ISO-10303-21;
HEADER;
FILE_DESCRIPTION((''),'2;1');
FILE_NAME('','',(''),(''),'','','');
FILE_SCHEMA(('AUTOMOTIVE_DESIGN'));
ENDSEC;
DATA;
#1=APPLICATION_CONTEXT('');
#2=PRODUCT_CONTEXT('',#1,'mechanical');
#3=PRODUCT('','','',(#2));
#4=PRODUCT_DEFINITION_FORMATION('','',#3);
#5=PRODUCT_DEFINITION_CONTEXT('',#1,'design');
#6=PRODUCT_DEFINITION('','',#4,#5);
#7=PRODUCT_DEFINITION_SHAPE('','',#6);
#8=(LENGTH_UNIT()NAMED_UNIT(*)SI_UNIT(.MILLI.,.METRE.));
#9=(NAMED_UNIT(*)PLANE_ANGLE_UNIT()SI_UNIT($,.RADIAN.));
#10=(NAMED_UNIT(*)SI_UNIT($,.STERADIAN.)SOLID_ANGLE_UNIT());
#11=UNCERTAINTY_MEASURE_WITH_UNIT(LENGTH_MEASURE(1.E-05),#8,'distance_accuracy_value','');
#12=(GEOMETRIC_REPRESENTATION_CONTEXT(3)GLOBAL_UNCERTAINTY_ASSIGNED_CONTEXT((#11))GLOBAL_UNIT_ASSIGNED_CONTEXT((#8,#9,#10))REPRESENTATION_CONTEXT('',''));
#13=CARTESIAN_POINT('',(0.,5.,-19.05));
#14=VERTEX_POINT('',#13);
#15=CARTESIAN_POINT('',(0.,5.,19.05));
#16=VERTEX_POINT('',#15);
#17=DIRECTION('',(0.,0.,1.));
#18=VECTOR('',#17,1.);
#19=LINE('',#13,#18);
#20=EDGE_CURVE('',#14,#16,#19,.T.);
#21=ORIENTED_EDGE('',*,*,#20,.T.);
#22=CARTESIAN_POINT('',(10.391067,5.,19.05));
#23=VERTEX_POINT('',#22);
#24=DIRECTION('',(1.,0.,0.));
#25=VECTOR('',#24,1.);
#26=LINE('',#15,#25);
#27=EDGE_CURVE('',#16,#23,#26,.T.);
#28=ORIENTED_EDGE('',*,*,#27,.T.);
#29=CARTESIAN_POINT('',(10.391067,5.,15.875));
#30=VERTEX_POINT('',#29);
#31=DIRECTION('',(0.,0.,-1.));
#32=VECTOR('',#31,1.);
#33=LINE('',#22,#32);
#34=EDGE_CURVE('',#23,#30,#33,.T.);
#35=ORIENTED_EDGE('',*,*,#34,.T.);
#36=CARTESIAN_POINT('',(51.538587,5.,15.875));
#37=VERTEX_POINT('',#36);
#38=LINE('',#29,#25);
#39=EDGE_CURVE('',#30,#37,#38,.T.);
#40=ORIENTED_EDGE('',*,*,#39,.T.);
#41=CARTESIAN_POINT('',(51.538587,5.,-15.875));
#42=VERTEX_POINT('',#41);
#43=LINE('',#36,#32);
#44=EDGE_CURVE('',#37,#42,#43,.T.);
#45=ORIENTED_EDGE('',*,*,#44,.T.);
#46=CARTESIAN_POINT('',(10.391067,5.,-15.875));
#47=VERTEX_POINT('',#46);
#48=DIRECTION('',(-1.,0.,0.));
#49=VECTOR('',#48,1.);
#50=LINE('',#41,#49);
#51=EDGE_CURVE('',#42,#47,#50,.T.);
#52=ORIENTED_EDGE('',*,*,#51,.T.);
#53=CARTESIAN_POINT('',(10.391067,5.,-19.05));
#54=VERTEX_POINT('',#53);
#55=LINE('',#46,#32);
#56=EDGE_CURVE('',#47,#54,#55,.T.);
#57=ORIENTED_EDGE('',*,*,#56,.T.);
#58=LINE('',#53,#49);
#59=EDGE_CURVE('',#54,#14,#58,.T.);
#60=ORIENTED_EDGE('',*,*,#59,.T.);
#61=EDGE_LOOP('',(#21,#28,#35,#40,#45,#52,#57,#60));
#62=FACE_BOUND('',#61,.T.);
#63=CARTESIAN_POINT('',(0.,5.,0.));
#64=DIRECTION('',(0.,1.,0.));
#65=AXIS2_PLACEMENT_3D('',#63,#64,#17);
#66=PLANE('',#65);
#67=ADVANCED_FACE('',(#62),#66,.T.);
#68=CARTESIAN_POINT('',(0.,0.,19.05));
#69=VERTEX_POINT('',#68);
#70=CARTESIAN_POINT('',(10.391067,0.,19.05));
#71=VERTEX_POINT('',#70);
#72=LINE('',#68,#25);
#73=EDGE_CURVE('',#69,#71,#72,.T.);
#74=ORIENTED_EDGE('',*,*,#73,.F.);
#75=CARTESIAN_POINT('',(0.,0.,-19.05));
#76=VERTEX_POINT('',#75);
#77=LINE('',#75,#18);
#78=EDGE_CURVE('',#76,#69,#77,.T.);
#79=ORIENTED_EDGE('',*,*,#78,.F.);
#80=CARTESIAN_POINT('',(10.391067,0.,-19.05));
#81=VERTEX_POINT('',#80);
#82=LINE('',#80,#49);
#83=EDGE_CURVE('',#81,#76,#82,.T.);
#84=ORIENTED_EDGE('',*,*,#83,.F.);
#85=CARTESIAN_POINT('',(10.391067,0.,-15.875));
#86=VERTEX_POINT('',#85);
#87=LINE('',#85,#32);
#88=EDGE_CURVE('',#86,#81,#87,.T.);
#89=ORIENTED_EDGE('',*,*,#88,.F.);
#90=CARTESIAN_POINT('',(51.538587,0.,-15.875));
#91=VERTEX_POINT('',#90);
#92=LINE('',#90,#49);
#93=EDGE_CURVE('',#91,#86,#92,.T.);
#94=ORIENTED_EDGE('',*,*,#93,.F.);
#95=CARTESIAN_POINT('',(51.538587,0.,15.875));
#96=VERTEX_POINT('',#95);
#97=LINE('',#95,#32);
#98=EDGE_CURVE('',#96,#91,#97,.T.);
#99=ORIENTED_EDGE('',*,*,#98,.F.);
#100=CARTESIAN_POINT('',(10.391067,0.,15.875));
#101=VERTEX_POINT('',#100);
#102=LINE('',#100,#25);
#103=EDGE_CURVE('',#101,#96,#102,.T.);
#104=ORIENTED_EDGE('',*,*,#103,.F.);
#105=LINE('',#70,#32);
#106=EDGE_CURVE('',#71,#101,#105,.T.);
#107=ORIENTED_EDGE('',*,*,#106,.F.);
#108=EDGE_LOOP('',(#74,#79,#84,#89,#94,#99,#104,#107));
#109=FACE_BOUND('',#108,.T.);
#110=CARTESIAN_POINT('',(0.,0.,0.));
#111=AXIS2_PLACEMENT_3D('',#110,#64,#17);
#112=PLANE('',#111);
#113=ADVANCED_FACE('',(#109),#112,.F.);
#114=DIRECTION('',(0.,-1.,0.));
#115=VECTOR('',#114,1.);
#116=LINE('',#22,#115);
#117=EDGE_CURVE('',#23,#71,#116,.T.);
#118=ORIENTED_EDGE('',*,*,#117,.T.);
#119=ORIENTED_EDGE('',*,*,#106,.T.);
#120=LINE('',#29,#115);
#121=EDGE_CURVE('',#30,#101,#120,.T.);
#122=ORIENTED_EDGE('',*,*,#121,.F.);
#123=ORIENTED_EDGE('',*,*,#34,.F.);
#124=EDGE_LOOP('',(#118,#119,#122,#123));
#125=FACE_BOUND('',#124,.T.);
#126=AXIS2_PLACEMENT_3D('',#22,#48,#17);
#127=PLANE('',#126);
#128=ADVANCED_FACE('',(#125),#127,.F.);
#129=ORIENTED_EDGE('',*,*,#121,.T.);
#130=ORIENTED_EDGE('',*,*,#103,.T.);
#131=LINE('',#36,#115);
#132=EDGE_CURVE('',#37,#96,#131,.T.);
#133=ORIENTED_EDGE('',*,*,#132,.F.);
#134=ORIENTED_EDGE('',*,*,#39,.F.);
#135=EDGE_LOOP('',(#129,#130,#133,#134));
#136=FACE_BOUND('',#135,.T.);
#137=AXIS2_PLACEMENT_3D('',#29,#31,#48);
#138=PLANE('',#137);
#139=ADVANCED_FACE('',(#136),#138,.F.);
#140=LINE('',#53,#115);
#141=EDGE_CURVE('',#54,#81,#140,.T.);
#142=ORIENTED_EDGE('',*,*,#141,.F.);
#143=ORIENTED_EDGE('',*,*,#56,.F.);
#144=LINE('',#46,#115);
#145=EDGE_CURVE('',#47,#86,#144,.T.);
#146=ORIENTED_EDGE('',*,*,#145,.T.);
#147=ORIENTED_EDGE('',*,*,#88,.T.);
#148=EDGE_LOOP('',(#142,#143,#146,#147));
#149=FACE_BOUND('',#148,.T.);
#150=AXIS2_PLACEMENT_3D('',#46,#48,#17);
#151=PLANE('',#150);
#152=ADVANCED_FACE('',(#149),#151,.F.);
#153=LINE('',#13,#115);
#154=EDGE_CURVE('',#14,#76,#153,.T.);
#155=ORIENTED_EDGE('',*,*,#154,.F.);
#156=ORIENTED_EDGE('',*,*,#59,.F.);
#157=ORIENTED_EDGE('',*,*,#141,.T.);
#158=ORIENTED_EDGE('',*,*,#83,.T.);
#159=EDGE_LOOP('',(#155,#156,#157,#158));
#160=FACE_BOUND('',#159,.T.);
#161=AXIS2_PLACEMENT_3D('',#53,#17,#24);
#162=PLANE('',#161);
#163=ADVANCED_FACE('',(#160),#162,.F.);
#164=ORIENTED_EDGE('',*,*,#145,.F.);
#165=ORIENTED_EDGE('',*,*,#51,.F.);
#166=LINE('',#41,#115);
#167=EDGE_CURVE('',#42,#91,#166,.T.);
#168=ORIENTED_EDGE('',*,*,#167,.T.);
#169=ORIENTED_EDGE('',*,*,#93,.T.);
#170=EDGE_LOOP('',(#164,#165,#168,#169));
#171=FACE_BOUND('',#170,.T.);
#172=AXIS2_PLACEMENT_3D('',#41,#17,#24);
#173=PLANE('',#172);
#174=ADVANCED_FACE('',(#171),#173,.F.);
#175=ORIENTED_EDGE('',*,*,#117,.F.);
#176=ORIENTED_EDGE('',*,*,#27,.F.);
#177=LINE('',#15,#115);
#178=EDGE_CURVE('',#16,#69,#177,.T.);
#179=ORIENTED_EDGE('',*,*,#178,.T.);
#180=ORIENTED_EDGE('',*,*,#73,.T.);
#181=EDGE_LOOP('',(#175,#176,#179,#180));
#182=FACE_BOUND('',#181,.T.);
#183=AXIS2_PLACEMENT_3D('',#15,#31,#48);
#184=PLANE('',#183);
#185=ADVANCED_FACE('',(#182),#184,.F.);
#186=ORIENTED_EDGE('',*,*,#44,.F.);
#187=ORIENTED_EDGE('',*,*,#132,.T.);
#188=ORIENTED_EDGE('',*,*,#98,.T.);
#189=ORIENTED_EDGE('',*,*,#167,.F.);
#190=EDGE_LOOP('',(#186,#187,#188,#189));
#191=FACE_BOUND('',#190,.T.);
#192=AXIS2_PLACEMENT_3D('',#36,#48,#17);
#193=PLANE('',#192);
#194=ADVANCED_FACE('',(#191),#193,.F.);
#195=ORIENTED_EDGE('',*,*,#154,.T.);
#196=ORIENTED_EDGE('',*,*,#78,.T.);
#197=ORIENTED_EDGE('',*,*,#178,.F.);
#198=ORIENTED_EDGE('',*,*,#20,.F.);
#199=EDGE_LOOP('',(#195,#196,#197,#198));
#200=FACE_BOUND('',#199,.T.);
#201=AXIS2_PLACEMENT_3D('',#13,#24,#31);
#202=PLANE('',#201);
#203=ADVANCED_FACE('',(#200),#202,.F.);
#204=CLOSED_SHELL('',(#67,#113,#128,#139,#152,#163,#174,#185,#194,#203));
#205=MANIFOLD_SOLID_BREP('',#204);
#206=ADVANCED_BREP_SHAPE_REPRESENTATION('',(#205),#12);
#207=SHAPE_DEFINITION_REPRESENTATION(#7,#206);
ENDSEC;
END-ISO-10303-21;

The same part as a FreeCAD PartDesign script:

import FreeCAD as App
import Part
import Sketcher
from FreeCAD import Vector
Q = App.Units.Quantity


def add_polygon(sketch, points):
    """Adds a closed chain of lines whose ends are joined by coincident constraints."""
    first, n = sketch.GeometryCount, len(points)
    for a, b in zip(points, points[1:] + points[:1]):
        sketch.addGeometry(Part.LineSegment(App.Vector(*a, 0), App.Vector(*b, 0)), False)
    for i in range(n):
        sketch.addConstraint(Sketcher.Constraint("Coincident", first + i, 2, first + (i + 1) % n, 1))

doc = App.newDocument("Part")
body = doc.addObject("PartDesign::Body", "Body")

# Sketch on XZ plane
sketch1 = body.newObject("Sketcher::SketchObject", "Sketch")
sketch1.AttachmentSupport = (doc.getObject("XZ_Plane"), [""])
sketch1.MapMode = "FlatFace"
add_polygon(sketch1, [(0, -19.1), (0, 19.1), (10.4, 19.1), (10.4, 15.9), (51.5, 15.9), (51.5, -15.9), (10.4, -15.9), (10.4, -19.1)])  # lines 0-7
sketch1.addConstraint([
    Sketcher.Constraint("Vertical", 0),
    Sketcher.Constraint("Horizontal", 1),
    Sketcher.Constraint("Vertical", 2),
    Sketcher.Constraint("Horizontal", 3),
    Sketcher.Constraint("Vertical", 4),
    Sketcher.Constraint("Horizontal", 5),
    Sketcher.Constraint("Vertical", 6),
    Sketcher.Constraint("Horizontal", 7),
    Sketcher.Constraint("Symmetric", 0, 2, 7, 2, -1, 1),
    Sketcher.Constraint("Symmetric", 2, 2, 5, 2, -1),
    Sketcher.Constraint("DistanceY", 0, 1, 0, 2, Q("1.5 in")),
    Sketcher.Constraint("DistanceY", 4, 2, 4, 1, Q("1.25 in")),
    Sketcher.Constraint("DistanceX", 3, 1, 3, 2, Q("41.14752 mm")),
    Sketcher.Constraint("DistanceX", 1, 1, 1, 2, Q("10.391067 mm")),
])
pad1 = body.newObject("PartDesign::Pad", "Pad")
pad1.Profile = sketch1
pad1.Length = 5
pad1.Reversed = True

doc.recompute()
